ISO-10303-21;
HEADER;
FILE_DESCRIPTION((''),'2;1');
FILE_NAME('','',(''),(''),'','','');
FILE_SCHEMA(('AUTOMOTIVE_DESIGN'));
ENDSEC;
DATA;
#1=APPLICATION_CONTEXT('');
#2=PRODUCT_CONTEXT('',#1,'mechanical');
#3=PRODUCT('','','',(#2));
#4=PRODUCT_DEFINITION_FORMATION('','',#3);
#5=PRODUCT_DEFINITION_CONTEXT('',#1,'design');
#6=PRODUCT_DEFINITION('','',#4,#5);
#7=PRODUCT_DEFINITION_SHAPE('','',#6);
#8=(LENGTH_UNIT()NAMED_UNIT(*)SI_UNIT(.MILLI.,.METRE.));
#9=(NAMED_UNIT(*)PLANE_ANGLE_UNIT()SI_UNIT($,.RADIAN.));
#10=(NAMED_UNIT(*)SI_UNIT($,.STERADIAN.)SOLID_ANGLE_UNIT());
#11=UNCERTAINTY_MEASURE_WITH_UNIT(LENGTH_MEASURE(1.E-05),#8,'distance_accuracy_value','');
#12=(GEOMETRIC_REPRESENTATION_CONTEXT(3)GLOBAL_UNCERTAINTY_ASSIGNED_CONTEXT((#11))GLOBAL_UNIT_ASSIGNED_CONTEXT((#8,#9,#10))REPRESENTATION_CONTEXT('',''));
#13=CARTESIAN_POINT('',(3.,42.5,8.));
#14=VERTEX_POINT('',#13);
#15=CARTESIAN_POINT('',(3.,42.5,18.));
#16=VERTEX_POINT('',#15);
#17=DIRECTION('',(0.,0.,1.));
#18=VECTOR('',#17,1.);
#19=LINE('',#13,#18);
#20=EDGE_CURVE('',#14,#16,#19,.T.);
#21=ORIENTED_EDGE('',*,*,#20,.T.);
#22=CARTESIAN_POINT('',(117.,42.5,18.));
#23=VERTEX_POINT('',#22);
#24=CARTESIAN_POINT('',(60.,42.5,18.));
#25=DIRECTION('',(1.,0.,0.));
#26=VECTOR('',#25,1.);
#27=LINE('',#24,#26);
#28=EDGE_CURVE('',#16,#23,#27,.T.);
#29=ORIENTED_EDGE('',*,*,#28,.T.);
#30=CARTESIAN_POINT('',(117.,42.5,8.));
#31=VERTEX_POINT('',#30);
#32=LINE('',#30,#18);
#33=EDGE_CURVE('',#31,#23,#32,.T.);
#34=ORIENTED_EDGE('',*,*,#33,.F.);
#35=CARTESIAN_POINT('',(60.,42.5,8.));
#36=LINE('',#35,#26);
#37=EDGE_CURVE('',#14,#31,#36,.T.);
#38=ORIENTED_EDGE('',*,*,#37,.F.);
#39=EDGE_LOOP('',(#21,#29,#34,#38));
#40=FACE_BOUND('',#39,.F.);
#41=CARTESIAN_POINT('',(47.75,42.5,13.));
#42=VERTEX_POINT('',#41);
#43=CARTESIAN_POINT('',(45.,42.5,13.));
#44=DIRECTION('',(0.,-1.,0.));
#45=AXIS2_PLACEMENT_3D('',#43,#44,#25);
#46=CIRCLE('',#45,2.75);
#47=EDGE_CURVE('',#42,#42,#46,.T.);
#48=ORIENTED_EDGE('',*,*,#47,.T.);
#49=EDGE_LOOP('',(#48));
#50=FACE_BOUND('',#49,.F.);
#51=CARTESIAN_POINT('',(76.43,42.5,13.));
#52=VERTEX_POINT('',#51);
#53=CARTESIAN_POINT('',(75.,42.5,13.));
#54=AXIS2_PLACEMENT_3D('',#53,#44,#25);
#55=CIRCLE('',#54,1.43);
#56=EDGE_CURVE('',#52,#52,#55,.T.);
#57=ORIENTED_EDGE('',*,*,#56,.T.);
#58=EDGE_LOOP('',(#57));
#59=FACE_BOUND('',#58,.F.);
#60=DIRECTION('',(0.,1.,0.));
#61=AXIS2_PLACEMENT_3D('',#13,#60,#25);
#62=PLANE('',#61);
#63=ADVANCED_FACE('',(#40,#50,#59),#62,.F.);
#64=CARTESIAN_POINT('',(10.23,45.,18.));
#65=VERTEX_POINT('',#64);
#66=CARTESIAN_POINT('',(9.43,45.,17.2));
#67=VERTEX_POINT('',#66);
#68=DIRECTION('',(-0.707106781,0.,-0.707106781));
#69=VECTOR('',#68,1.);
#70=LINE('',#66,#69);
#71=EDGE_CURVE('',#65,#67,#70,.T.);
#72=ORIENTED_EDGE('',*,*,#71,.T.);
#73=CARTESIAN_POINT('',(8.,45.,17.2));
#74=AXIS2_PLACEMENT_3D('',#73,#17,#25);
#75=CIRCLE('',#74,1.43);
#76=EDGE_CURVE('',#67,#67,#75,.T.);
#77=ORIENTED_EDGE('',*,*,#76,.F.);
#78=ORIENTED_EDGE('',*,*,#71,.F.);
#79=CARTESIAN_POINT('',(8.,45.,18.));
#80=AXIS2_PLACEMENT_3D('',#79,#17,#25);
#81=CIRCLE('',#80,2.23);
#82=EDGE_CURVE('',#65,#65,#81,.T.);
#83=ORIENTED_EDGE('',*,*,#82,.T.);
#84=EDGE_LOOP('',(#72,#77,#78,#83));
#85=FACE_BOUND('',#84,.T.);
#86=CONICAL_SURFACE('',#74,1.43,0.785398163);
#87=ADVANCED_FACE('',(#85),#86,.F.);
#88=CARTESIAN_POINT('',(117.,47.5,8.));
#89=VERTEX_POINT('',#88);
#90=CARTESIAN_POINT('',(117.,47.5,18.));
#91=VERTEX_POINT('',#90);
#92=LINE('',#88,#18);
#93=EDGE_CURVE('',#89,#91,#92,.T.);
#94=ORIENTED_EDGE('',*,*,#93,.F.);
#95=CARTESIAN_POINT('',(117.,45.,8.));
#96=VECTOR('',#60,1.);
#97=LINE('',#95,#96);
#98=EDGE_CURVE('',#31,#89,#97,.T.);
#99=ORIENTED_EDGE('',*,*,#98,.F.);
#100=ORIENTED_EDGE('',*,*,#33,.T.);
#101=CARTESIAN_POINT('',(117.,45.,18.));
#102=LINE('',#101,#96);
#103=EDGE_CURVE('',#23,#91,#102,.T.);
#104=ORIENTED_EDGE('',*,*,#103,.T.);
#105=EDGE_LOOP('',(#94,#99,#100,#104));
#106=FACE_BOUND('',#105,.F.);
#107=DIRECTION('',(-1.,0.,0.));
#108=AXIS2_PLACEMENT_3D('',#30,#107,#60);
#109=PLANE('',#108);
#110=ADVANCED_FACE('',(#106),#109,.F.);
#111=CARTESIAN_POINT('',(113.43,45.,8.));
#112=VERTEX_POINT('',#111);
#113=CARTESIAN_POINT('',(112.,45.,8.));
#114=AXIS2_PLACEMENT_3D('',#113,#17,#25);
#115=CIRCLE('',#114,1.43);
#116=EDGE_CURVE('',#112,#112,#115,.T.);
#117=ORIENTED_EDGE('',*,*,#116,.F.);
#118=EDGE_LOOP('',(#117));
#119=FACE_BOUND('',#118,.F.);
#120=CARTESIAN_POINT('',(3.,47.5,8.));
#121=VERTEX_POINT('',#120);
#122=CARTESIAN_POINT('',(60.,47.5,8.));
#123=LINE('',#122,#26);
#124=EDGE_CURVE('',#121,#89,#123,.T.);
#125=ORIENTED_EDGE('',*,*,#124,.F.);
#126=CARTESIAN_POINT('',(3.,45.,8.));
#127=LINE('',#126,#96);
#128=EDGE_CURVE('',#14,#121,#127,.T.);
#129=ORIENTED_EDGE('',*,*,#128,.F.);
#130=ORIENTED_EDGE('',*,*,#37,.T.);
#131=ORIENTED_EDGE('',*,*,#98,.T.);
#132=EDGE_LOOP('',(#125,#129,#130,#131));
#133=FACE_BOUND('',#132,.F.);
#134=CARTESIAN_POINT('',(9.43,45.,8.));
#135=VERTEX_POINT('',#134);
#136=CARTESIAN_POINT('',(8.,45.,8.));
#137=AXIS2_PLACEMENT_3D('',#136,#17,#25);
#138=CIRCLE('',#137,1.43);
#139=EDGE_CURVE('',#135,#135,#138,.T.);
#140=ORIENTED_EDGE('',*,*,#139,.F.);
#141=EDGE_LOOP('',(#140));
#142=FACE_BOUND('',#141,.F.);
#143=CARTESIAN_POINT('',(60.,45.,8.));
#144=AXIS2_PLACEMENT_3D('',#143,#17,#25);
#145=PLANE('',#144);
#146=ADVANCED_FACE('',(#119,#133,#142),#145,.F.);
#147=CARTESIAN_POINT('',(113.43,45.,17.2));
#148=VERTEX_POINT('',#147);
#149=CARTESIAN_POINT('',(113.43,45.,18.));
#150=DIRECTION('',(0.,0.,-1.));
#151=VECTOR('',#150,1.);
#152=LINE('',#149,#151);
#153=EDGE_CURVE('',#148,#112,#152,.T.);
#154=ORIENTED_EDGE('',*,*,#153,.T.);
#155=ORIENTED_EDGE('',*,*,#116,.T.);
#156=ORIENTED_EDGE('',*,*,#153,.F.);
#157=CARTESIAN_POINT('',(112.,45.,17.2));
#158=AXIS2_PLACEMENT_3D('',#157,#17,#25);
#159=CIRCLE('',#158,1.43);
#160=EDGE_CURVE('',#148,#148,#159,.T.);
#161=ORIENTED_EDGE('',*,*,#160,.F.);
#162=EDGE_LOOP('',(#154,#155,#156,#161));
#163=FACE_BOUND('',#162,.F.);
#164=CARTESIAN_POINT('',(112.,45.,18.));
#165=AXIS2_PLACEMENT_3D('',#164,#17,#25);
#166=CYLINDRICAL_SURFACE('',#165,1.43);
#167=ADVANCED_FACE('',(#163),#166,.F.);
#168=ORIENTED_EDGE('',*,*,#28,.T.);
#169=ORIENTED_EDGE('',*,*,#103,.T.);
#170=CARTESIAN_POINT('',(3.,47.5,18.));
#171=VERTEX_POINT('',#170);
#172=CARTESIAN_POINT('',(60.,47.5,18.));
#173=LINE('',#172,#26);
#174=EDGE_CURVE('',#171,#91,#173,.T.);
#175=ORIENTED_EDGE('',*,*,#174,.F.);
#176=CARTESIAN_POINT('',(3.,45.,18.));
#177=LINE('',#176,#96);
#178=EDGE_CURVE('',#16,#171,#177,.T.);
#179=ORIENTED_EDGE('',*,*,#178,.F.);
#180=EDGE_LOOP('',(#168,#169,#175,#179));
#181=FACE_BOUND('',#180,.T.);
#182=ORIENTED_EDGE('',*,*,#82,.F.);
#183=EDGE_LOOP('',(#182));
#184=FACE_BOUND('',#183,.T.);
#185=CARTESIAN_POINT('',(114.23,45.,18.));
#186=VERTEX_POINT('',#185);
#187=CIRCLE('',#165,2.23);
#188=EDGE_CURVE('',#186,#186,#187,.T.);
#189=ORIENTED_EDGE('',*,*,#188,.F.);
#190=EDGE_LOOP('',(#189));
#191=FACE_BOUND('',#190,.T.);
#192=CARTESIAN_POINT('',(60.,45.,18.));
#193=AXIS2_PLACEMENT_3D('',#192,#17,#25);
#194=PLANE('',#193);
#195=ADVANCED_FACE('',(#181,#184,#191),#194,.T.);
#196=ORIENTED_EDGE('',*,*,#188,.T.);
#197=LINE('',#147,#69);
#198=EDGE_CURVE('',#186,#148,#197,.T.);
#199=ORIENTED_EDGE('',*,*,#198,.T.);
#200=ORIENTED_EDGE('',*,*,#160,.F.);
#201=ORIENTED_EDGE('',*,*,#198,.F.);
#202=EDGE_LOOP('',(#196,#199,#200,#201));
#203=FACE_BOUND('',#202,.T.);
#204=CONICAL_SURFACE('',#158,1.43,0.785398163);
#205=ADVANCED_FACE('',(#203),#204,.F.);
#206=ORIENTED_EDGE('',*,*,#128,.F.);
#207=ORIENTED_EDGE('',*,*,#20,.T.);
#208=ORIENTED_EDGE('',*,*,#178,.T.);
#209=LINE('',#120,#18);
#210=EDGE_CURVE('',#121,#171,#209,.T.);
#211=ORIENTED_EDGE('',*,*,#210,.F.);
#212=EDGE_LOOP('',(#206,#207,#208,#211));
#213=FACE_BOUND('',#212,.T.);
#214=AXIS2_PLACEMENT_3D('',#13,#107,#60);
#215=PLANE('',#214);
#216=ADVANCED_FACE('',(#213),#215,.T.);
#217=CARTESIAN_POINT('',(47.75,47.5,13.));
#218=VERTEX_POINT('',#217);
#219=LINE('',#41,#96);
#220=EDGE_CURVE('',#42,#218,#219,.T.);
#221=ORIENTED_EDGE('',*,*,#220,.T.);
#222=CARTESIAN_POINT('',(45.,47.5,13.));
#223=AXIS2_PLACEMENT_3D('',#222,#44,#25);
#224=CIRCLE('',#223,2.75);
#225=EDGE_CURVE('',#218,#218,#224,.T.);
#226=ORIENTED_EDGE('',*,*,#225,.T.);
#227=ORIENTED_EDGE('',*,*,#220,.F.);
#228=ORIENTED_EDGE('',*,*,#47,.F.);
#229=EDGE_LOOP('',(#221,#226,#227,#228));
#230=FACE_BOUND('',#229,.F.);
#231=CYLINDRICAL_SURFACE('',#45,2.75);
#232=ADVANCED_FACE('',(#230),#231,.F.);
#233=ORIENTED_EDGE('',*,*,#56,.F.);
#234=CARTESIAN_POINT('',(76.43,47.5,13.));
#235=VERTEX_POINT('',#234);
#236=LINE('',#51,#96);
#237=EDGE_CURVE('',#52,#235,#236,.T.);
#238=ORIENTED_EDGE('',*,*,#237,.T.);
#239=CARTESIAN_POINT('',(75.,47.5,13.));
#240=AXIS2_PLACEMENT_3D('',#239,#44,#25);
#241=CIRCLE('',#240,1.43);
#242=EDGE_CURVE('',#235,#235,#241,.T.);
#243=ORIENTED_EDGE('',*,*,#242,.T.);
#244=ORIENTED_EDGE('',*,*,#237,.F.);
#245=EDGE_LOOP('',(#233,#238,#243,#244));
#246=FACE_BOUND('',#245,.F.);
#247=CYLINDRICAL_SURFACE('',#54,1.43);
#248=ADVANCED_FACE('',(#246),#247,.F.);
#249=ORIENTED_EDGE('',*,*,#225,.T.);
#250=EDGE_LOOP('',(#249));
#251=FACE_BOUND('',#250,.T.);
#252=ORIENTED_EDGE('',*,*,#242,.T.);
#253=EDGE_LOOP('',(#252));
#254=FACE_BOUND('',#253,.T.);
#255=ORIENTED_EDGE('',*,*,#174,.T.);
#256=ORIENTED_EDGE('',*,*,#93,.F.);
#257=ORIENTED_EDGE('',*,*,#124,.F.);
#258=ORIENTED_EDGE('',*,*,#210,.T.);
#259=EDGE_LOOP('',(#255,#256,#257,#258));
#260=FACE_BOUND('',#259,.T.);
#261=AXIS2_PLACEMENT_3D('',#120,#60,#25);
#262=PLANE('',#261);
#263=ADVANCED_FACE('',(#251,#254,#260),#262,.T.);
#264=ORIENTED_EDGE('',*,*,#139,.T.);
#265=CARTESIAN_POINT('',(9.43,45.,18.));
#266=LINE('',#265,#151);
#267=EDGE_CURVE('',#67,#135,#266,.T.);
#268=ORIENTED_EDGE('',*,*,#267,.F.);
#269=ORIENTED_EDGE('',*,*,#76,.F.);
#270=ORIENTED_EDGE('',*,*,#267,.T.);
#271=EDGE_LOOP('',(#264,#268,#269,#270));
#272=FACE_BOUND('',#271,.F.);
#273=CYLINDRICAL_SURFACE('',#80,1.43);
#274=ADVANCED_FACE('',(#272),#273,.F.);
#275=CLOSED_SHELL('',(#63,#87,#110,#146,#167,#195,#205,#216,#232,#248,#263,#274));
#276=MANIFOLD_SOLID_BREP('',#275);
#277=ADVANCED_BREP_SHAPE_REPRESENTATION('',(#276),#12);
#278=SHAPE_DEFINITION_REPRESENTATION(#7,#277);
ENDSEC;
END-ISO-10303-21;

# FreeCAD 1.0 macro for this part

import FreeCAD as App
import Part
import Sketcher


def edges_at(feature, points):
    """Names of the edges that pass closest to the given points."""
    edges = feature.Shape.Edges
    near = lambda p: min(range(len(edges)), key=lambda i: edges[i].distToShape(Part.Vertex(*p))[0])
    return sorted({f"Edge{near(p) + 1}" for p in points})

doc = App.newDocument("Part")
body = doc.addObject("PartDesign::Body", "Body")

# Sketch on XY plane
sketch1 = doc.addObject("Sketcher::SketchObject", "Sketch")
body.addObject(sketch1)
sketch1.AttachmentSupport = (doc.XY_Plane, [""])
sketch1.MapMode = "FlatFace"
sketch1.addGeometry([
    Part.LineSegment(App.Vector(3, 48, 0), App.Vector(3, 42, 0)),
    Part.LineSegment(App.Vector(3, 42, 0), App.Vector(117, 42, 0)),
    Part.LineSegment(App.Vector(117, 42, 0), App.Vector(117, 48, 0)),
    Part.LineSegment(App.Vector(117, 48, 0), App.Vector(3, 48, 0)),
], False)
sketch1.addConstraint([
    Sketcher.Constraint("Coincident", 0, 2, 1, 1),
    Sketcher.Constraint("Coincident", 1, 2, 2, 1),
    Sketcher.Constraint("Coincident", 2, 2, 3, 1),
    Sketcher.Constraint("Coincident", 3, 2, 0, 1),
    Sketcher.Constraint("Vertical", 0),
    Sketcher.Constraint("Horizontal", 1),
    Sketcher.Constraint("Vertical", 2),
    Sketcher.Constraint("Horizontal", 3),
    Sketcher.Constraint("DistanceX", 1, 1, 1, 2, 114.0),
    Sketcher.Constraint("DistanceY", 0, 2, 0, 1, 5.0),
    Sketcher.Constraint("DistanceX", -1, 1, 0, 2, 3.0),
    Sketcher.Constraint("DistanceY", -1, 1, 0, 2, 42.5),
])
pad1 = doc.addObject("PartDesign::Pad", "Pad")
body.addObject(pad1)
pad1.Profile = sketch1
pad1.Length = 10

# Sketch on XY plane
sketch2 = doc.addObject("Sketcher::SketchObject", "Sketch001")
body.addObject(sketch2)
sketch2.AttachmentSupport = (doc.XY_Plane, [""])
sketch2.MapMode = "FlatFace"
sketch2.AttachmentOffset = App.Placement(App.Vector(0, 0, 10), App.Rotation())
sketch2.addGeometry([
    Part.Circle(App.Vector(8, 45, 0), App.Vector(0, 0, 1), 1.4),
    Part.Circle(App.Vector(112, 45, 0), App.Vector(0, 0, 1), 1.4),
], False)
sketch2.addConstraint([
    Sketcher.Constraint("Equal", 0, 1),
    Sketcher.Constraint("Horizontal", 0, 3, 1, 3),
    Sketcher.Constraint("Diameter", 0, 2.86),
    Sketcher.Constraint("DistanceX", -1, 1, 0, 3, 8.0),
    Sketcher.Constraint("DistanceY", -1, 1, 0, 3, 45.0),
    Sketcher.Constraint("DistanceX", -1, 1, 1, 3, 112.0),
])
pocket1 = doc.addObject("PartDesign::Pocket", "Pocket")
body.addObject(pocket1)
pocket1.Profile = sketch2
pocket1.Length = 10
doc.recompute()

chamfer = doc.addObject("PartDesign::Chamfer", "Chamfer")
body.addObject(chamfer)
chamfer.Base = (pocket1, edges_at(pocket1, [(110.57, 45, 10), (6.57, 45, 10)]))
chamfer.Size = 0.8

# Sketch on XZ plane
sketch3 = doc.addObject("Sketcher::SketchObject", "Sketch002")
body.addObject(sketch3)
sketch3.AttachmentSupport = (doc.XZ_Plane, [""])
sketch3.MapMode = "FlatFace"
sketch3.AttachmentOffset = App.Placement(App.Vector(0, 0, -42.5), App.Rotation())
sketch3.addGeometry([
    Part.Circle(App.Vector(45, 5, 0), App.Vector(0, 0, 1), 2.8),
    Part.Circle(App.Vector(75, 5, 0), App.Vector(0, 0, 1), 1.4),
], False)
sketch3.addConstraint([
    Sketcher.Constraint("Horizontal", 0, 3, 1, 3),
    Sketcher.Constraint("Diameter", 0, 5.5),
    Sketcher.Constraint("Diameter", 1, 2.86),
    Sketcher.Constraint("DistanceX", -1, 1, 0, 3, 45.0),
    Sketcher.Constraint("DistanceY", -1, 1, 0, 3, 5.0),
    Sketcher.Constraint("DistanceX", -1, 1, 1, 3, 75.0),
])
pocket2 = doc.addObject("PartDesign::Pocket", "Pocket001")
body.addObject(pocket2)
pocket2.Profile = sketch3
pocket2.Length = 5
body2 = doc.addObject("PartDesign::Body", "Body001")
doc.recompute()

body.Placement = App.Placement(App.Vector(0, 0, 8), App.Rotation(App.Vector(0, 0, 1), 0))
boolean = doc.addObject("PartDesign::Boolean", "Boolean")
body2.addObject(boolean)
boolean.Type = "Fuse"
boolean.addObjects([body])

doc.recompute()
